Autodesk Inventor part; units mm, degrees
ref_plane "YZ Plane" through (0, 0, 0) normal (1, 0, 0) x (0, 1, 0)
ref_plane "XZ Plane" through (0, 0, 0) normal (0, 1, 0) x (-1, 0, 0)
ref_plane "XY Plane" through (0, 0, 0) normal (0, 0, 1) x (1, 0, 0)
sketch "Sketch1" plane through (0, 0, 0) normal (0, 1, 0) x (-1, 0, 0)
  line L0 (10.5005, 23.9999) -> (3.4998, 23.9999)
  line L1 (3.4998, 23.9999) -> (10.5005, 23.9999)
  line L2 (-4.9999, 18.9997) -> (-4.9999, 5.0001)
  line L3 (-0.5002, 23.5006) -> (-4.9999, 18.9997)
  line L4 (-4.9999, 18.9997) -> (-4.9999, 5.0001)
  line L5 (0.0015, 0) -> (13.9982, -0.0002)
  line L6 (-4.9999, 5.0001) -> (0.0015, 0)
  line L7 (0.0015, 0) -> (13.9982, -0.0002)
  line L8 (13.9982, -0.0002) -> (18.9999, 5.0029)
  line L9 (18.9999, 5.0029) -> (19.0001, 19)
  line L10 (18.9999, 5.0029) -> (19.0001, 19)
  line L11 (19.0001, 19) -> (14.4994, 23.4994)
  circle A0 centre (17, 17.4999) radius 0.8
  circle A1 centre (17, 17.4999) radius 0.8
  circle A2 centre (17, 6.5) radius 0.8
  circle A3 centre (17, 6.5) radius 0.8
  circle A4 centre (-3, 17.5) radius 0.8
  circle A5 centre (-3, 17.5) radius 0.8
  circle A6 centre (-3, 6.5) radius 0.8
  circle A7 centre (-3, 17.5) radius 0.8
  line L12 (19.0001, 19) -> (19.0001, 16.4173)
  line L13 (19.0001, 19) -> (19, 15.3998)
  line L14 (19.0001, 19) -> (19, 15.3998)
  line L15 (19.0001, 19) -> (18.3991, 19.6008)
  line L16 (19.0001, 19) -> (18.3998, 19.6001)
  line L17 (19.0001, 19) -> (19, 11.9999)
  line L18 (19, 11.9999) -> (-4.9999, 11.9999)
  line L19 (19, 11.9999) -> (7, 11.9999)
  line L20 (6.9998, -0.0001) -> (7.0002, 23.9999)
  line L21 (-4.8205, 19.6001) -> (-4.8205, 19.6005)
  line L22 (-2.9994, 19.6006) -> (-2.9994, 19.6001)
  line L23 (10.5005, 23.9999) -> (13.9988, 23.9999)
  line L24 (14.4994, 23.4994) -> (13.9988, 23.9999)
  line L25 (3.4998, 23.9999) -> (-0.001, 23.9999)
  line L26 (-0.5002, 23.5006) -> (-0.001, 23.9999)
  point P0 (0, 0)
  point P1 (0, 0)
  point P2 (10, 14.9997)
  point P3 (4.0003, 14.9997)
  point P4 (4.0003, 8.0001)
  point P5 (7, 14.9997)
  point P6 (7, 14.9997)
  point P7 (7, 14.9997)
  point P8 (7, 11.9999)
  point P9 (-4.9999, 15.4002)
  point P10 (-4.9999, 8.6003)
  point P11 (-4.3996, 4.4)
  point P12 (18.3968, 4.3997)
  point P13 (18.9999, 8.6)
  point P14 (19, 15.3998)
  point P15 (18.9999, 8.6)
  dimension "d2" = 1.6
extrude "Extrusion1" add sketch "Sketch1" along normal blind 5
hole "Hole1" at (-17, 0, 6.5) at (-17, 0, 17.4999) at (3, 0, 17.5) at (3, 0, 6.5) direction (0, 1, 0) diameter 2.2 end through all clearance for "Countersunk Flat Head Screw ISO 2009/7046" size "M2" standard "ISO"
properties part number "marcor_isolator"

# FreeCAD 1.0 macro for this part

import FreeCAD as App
import Part
import Sketcher

V = App.Vector
Q = App.Units.Quantity

doc = App.newDocument("Part")
body = doc.addObject("PartDesign::Body", "Body")

# Sketch on XZ plane
sketch1 = body.newObject("Sketcher::SketchObject", "Sketch")
sketch1.AttachmentSupport = (doc.getObject("XZ_Plane"), [""])
sketch1.MapMode = "FlatFace"
sketch1.addGeometry([
    Part.LineSegment(V(-14, 24, 0), V(0, 24, 0)),  # 0
    Part.LineSegment(V(0, 24, 0), V(0.5, 23.5, 0)),  # 1
    Part.LineSegment(V(0.5, 23.5, 0), V(5, 19, 0)),  # 2
    Part.LineSegment(V(5, 19, 0), V(5, 5, 0)),  # 3
    Part.LineSegment(V(5, 5, 0), V(0, 0, 0)),  # 4
    Part.LineSegment(V(0, 0, 0), V(-14, 0, 0)),  # 5
    Part.LineSegment(V(-14, 0, 0), V(-19, 5, 0)),  # 6
    Part.LineSegment(V(-19, 5, 0), V(-19, 19, 0)),  # 7
    Part.LineSegment(V(-19, 19, 0), V(-14.5, 23.5, 0)),  # 8
    Part.LineSegment(V(-14.5, 23.5, 0), V(-14, 24, 0)),  # 9
    Part.Circle(V(-17, 17.5, 0), V(0, 0, 1), 0.8),  # 10
    Part.Circle(V(-17, 6.5, 0), V(0, 0, 1), 0.8),  # 11
    Part.Circle(V(3, 17.5, 0), V(0, 0, 1), 0.8),  # 12
    Part.Circle(V(3, 6.5, 0), V(0, 0, 1), 0.8),  # 13
], False)
sketch1.addConstraint([
    Sketcher.Constraint("Coincident", 0, 2, 1, 1),
    Sketcher.Constraint("Coincident", 1, 2, 2, 1),
    Sketcher.Constraint("Coincident", 2, 2, 3, 1),
    Sketcher.Constraint("Coincident", 3, 2, 4, 1),
    Sketcher.Constraint("Coincident", 4, 2, 5, 1),
    Sketcher.Constraint("Coincident", 5, 2, 6, 1),
    Sketcher.Constraint("Coincident", 6, 2, 7, 1),
    Sketcher.Constraint("Coincident", 7, 2, 8, 1),
    Sketcher.Constraint("Coincident", 8, 2, 9, 1),
    Sketcher.Constraint("Coincident", 9, 2, 0, 1),
    Sketcher.Constraint("Horizontal", 0),
    Sketcher.Constraint("Vertical", 3),
    Sketcher.Constraint("Vertical", 7),
    Sketcher.Constraint("Equal", 10, 11),
    Sketcher.Constraint("Equal", 11, 12),
    Sketcher.Constraint("Equal", 12, 13),
    Sketcher.Constraint("PointOnObject", 4, 2, -1),
    Sketcher.Constraint("Parallel", 1, 2),
    Sketcher.Constraint("Perpendicular", 2, 4),
    Sketcher.Constraint("Perpendicular", 4, 6),
    Sketcher.Constraint("Perpendicular", 6, 8),
    Sketcher.Constraint("Parallel", 8, 9),
    Sketcher.Constraint("Horizontal", 10, 3, 12, 3),
    Sketcher.Constraint("Horizontal", 11, 3, 13, 3),
    Sketcher.Constraint("Vertical", 10, 3, 11, 3),
    Sketcher.Constraint("Vertical", 12, 3, 13, 3),
    Sketcher.Constraint("Equal", 0, 3),
    Sketcher.Constraint("Diameter", 10, Q("1.6 mm")),
    Sketcher.Constraint("Angle", 5, Q("-179.9992 deg")),
    Sketcher.Constraint("DistanceX", 10, 3, -1, 1, Q("17 mm")),
    Sketcher.Constraint("DistanceX", -1, 1, 12, 3, Q("3 mm")),
    Sketcher.Constraint("DistanceY", -1, 1, 0, 2, Q("24 mm")),
    Sketcher.Constraint("DistanceX", -1, 1, 2, 2, Q("5 mm")),
    Sketcher.Constraint("DistanceY", -1, 1, 3, 2, Q("5 mm")),
    Sketcher.Constraint("DistanceX", 6, 2, -1, 1, Q("19 mm")),
    Sketcher.Constraint("DistanceY", 11, 3, 10, 3, Q("11 mm")),
    Sketcher.Constraint("DistanceY", -1, 1, 10, 3, Q("17.5 mm")),
    Sketcher.Constraint("DistanceY", 7, 1, 7, 2, Q("13.997 mm")),
    Sketcher.Constraint("Distance", 1, Q("0.706 mm")),
    Sketcher.Constraint("Distance", 8, Q("6.364 mm")),
    Sketcher.Constraint("Distance", 9, Q("0.708 mm")),
    Sketcher.Constraint("DistanceX", 0, 1, 0, 2, Q("13.9998 mm")),
])
pad1 = body.newObject("PartDesign::Pad", "Pad")
pad1.Profile = sketch1
pad1.Length = 5
pad1.Reversed = True

# Sketch on XZ plane
sketch2 = body.newObject("Sketcher::SketchObject", "Sketch001")
sketch2.AttachmentSupport = (doc.getObject("XZ_Plane"), [""])
sketch2.MapMode = "FlatFace"
sketch2.addGeometry([
    Part.Circle(V(-17, 6.5, 0), V(0, 0, 1), 1.1),
    Part.Circle(V(-17, 17.5, 0), V(0, 0, 1), 1.1),
    Part.Circle(V(3, 17.5, 0), V(0, 0, 1), 1.1),
    Part.Circle(V(3, 6.5, 0), V(0, 0, 1), 1.1),
], False)
sketch2.addConstraint([
    Sketcher.Constraint("Equal", 0, 1),
    Sketcher.Constraint("Equal", 1, 2),
    Sketcher.Constraint("Equal", 2, 3),
    Sketcher.Constraint("Horizontal", 1, 3, 2, 3),
    Sketcher.Constraint("Horizontal", 0, 3, 3, 3),
    Sketcher.Constraint("Vertical", 0, 3, 1, 3),
    Sketcher.Constraint("Vertical", 2, 3, 3, 3),
    Sketcher.Constraint("Diameter", 0, Q("2.2 mm")),
    Sketcher.Constraint("DistanceX", 0, 3, -1, 1, Q("17 mm")),
    Sketcher.Constraint("DistanceX", -1, 1, 2, 3, Q("3 mm")),
    Sketcher.Constraint("DistanceY", 0, 3, 1, 3, Q("11 mm")),
    Sketcher.Constraint("DistanceY", -1, 1, 0, 3, Q("6.5 mm")),
])
doc.recompute()
hole = body.newObject("PartDesign::Hole", "Hole")
hole.Profile = sketch2
hole.ThreadType = "None"
hole.Diameter = 2.2
hole.DepthType = "ThroughAll"

doc.recompute()
